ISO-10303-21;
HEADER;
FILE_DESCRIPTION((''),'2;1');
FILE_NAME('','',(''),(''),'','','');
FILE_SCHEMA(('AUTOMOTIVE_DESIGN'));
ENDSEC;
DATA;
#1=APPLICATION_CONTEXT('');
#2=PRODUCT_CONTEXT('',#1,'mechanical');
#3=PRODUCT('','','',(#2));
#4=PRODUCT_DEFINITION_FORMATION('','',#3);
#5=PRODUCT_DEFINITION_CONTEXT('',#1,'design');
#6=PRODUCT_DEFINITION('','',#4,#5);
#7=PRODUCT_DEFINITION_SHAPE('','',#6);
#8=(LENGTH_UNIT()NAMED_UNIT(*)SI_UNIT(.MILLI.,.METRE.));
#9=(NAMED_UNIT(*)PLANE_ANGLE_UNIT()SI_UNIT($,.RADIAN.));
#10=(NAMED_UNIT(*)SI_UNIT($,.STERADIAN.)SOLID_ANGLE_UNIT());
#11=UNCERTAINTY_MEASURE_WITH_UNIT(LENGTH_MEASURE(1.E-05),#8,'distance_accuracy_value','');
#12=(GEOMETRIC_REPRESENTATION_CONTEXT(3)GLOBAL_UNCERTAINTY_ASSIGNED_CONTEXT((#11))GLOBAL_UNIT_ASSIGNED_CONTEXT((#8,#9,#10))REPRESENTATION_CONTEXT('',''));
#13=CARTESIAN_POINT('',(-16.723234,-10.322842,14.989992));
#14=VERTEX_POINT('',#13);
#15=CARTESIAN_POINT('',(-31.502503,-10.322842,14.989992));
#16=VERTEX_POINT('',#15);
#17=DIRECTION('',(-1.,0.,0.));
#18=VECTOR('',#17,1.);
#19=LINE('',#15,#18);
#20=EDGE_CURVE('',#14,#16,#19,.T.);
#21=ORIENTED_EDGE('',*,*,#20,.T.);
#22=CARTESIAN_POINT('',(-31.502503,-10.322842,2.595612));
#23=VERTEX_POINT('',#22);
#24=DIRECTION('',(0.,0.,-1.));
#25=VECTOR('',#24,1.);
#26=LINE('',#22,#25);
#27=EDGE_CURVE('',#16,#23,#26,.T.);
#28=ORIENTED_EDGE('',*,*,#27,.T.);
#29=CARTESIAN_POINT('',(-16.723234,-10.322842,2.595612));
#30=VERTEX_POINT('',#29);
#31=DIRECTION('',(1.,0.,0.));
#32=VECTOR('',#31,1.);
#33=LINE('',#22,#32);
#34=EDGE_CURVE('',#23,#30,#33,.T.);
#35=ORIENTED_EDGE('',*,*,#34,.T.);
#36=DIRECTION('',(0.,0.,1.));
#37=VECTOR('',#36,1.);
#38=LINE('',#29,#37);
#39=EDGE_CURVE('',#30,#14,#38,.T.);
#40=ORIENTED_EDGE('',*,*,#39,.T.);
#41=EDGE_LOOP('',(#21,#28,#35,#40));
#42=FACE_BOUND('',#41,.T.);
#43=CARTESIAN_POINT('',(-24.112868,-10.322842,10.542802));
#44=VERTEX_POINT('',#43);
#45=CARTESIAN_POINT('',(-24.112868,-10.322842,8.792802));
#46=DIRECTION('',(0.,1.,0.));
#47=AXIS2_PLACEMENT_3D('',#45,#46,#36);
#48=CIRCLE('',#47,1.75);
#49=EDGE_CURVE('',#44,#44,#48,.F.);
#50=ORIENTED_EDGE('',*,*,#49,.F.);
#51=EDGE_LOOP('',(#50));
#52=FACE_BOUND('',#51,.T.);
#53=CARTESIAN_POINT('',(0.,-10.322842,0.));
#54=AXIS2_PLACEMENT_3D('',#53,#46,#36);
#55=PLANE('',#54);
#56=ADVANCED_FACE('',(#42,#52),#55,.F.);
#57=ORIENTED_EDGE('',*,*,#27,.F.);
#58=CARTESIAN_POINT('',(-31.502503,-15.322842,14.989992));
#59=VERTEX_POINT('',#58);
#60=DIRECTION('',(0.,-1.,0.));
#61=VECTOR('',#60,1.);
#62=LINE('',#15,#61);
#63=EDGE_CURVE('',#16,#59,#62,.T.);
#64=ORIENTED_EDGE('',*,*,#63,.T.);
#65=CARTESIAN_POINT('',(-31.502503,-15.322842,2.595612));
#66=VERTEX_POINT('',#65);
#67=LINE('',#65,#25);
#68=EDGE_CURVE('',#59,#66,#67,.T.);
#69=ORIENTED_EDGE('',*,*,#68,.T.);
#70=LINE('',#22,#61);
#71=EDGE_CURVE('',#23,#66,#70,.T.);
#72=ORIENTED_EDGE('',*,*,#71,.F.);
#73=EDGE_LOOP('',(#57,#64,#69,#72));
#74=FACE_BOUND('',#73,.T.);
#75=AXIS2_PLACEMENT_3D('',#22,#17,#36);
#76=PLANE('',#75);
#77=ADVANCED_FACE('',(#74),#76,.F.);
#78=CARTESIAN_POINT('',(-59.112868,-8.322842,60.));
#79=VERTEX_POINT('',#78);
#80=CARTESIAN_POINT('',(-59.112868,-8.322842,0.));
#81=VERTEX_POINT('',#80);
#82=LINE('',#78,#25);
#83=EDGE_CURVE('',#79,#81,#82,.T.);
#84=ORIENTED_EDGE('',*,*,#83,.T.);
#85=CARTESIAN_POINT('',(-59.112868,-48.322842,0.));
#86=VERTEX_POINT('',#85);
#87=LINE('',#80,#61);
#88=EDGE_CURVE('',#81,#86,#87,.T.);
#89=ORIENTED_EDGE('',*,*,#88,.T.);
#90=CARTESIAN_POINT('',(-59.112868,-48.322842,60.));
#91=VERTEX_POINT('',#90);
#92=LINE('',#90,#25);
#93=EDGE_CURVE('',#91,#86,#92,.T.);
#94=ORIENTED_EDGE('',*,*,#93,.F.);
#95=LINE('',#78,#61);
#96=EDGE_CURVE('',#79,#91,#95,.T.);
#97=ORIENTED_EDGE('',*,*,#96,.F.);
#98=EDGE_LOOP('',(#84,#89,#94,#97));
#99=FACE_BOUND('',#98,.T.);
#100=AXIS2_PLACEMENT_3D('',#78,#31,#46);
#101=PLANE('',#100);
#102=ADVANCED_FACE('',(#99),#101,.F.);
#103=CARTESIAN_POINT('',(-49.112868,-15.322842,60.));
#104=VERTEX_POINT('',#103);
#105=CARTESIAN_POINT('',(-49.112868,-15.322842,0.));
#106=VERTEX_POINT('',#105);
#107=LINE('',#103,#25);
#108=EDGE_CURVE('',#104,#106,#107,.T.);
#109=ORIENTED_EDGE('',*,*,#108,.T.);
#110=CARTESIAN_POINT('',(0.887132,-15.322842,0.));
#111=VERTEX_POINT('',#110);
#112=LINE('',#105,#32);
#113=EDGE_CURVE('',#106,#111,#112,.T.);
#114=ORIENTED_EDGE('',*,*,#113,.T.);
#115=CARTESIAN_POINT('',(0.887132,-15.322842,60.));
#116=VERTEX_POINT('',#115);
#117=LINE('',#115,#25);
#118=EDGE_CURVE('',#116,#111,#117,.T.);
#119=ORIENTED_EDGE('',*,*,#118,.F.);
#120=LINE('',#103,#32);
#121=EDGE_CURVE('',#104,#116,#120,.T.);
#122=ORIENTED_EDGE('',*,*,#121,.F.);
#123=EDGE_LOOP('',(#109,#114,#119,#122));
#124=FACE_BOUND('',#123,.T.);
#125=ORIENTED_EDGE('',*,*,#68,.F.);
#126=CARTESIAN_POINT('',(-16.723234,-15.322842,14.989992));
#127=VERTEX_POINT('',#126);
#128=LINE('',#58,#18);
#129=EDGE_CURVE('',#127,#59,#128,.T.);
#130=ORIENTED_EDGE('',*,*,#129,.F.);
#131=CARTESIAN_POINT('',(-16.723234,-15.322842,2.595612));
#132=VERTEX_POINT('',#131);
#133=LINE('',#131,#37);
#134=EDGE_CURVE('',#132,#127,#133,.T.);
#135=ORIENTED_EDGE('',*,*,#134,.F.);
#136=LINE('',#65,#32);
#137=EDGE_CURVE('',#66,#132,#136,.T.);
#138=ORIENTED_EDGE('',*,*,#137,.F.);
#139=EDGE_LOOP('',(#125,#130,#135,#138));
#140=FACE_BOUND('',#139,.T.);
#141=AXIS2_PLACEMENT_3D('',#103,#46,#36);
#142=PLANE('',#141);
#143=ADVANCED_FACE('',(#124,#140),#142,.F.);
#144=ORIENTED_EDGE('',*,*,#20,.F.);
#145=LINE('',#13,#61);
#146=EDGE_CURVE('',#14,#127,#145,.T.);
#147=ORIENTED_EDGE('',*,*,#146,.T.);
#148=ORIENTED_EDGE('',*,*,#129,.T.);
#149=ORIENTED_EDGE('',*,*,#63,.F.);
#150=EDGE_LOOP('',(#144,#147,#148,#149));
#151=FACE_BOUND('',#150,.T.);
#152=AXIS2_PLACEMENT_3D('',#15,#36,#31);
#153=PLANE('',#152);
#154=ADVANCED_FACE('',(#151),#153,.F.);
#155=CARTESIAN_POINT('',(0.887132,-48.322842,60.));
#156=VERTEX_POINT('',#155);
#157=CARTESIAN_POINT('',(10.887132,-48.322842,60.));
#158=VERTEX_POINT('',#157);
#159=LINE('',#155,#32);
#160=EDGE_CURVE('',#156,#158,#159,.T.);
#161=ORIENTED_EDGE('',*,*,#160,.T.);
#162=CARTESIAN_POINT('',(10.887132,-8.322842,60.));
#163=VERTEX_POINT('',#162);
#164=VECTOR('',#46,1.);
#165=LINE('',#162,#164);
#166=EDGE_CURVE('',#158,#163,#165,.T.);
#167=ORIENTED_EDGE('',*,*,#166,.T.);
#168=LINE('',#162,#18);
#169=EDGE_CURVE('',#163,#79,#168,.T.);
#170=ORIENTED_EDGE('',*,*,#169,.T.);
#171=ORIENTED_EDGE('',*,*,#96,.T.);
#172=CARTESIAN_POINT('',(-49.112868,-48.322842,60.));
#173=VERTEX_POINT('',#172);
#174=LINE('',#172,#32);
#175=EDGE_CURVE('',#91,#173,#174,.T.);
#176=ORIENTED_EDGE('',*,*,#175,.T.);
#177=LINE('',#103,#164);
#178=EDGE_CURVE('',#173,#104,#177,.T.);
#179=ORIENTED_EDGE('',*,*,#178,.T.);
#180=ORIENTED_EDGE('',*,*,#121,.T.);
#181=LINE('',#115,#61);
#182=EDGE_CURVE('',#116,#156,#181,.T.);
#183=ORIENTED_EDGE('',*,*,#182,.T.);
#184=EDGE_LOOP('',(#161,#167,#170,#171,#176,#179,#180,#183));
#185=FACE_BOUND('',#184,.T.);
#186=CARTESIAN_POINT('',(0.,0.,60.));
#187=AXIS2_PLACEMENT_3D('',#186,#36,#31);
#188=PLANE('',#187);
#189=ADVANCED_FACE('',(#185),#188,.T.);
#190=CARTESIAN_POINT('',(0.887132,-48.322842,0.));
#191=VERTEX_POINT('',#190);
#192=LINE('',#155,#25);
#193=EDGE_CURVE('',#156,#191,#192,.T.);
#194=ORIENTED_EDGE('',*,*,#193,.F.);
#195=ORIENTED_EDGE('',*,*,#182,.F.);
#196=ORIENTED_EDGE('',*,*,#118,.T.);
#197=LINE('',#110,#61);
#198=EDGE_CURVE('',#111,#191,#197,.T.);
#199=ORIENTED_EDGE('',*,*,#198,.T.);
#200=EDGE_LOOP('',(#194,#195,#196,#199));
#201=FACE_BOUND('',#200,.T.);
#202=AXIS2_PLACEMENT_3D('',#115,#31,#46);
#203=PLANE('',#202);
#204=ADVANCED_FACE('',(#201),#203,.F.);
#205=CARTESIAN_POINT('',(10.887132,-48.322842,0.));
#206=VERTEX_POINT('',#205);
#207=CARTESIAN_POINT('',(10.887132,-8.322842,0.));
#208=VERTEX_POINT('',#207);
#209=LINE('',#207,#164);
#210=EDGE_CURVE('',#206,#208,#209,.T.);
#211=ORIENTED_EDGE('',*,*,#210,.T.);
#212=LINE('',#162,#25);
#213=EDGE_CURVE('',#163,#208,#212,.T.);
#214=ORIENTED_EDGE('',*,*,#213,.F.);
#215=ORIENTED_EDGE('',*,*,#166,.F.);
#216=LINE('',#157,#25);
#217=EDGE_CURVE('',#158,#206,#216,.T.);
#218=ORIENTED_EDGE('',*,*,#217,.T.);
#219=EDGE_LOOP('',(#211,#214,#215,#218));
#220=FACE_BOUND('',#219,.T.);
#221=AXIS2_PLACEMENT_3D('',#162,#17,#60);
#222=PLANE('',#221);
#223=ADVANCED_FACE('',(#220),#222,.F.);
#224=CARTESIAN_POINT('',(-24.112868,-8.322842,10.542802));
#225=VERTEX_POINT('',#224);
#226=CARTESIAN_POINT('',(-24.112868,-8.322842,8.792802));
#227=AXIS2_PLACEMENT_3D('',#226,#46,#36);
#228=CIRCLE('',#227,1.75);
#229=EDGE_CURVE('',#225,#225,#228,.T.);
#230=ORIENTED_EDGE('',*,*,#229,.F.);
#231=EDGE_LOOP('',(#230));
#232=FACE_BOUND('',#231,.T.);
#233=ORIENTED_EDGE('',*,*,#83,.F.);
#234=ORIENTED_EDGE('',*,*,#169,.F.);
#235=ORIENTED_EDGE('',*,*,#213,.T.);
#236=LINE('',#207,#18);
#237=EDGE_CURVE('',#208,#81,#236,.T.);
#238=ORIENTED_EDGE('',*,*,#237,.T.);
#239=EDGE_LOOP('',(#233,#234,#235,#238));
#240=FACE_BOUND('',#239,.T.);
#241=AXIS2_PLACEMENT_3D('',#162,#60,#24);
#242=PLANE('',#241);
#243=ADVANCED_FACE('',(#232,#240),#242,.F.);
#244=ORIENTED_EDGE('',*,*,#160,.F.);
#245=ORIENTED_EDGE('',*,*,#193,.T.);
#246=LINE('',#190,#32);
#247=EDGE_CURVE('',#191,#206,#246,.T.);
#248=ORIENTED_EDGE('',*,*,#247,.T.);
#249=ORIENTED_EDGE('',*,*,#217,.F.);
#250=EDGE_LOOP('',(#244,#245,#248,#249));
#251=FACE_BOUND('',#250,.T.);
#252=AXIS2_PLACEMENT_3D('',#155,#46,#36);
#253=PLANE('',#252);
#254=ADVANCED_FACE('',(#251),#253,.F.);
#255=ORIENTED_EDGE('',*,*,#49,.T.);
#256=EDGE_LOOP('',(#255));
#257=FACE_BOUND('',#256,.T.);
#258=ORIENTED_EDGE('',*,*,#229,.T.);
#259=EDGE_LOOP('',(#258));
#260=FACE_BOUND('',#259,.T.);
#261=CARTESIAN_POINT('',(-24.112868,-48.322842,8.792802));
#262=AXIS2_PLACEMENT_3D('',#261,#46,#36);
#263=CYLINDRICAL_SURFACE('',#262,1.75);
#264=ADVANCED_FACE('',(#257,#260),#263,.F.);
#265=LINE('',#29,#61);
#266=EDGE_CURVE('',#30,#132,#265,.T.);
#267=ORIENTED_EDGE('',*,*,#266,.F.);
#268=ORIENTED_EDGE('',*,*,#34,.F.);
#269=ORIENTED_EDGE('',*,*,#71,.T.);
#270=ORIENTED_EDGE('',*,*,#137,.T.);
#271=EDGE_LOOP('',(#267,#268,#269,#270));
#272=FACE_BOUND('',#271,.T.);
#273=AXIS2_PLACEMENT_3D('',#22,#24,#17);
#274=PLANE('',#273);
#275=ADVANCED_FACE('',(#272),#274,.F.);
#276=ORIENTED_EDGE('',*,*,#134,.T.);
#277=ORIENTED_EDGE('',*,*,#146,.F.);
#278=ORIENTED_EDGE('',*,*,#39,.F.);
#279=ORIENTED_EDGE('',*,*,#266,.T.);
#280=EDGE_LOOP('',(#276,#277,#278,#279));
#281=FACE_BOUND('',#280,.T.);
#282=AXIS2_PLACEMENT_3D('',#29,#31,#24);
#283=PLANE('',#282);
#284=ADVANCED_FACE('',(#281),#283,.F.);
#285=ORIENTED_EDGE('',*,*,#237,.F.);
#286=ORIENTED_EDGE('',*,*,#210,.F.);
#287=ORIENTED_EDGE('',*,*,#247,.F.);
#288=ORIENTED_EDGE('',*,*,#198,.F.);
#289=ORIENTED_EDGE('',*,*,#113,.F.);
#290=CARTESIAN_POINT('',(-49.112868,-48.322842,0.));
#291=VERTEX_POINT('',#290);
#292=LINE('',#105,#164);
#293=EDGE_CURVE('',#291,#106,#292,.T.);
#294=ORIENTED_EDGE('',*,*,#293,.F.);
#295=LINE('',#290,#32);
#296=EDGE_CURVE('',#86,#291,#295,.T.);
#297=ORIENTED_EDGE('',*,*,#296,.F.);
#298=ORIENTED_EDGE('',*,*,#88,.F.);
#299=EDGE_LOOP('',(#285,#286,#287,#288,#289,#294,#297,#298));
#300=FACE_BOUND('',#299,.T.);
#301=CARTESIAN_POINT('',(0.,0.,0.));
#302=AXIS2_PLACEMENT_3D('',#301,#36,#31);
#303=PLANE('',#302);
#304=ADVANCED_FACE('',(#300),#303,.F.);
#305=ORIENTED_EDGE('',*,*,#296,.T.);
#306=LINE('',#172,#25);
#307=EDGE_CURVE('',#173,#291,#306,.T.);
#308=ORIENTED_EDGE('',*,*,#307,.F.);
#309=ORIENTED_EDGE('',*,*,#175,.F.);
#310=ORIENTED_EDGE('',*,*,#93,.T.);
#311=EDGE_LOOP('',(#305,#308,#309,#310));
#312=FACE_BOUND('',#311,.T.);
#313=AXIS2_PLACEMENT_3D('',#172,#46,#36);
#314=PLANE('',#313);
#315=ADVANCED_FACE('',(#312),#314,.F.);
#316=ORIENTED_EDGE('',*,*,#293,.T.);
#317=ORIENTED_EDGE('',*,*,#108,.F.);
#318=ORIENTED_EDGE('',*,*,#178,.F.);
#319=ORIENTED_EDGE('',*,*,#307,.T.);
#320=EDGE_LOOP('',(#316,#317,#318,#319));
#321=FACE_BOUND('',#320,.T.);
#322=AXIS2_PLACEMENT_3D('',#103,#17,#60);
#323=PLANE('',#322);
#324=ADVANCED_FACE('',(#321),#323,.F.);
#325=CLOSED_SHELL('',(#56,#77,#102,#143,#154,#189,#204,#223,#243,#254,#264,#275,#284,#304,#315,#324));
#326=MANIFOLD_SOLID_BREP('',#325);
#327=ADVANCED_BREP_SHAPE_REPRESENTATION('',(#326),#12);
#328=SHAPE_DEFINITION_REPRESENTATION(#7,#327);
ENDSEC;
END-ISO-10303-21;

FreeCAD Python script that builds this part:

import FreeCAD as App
import Part
import Sketcher


def add_polygon(sketch, points):
    """Adds a closed chain of lines whose ends are joined by coincident constraints."""
    first, n = sketch.GeometryCount, len(points)
    for a, b in zip(points, points[1:] + points[:1]):
        sketch.addGeometry(Part.LineSegment(App.Vector(*a, 0), App.Vector(*b, 0)), False)
    for i in range(n):
        sketch.addConstraint(Sketcher.Constraint("Coincident", first + i, 2, first + (i + 1) % n, 1))

doc = App.newDocument("Part")
params = doc.addObject("Spreadsheet::Sheet", "Params")
for row, (alias, value) in enumerate([
    ("sketch1_width", "10 mm"),
    ("sketch1_width2", "50 mm"),
    ("sketch1_height", "40 mm"),
    ("sketch1_height2", "33 mm"),
    ("pad1_length", "60 mm"),
    ("sketch2_diameter", "3.5 mm"),
    ("pocket2_length", "5 mm"),
], start=1):
    params.set(f"A{row}", alias)
    params.set(f"B{row}", "=" + value)
    params.setAlias(f"B{row}", alias)

body = doc.addObject("PartDesign::Body", "Body")

sketch1 = body.newObject("Sketcher::SketchObject", "Sketch")
sketch1.AttachmentSupport = (doc.getObject("XY_Plane"), [""])
sketch1.MapMode = "FlatFace"
add_polygon(sketch1, [(-59, -8), (-59, -48), (-49, -48), (-49, -15), (1, -15), (1, -48), (11, -48), (11, -8)])
sketch1.addConstraint([
    Sketcher.Constraint("Vertical", 0),
    Sketcher.Constraint("Horizontal", 1),
    Sketcher.Constraint("Vertical", 2),
    Sketcher.Constraint("Horizontal", 3),
    Sketcher.Constraint("Vertical", 4),
    Sketcher.Constraint("Horizontal", 5),
    Sketcher.Constraint("Vertical", 6),
    Sketcher.Constraint("Horizontal", 7),
    Sketcher.Constraint("Horizontal", 1, 2, 4, 2),
    Sketcher.Constraint("Equal", 1, 5),
    Sketcher.Constraint("DistanceX", 1, 1, 1, 2, 10.0),
    Sketcher.Constraint("DistanceX", 3, 1, 3, 2, 50.0),
    Sketcher.Constraint("DistanceY", 0, 2, 0, 1, 40.0),
    Sketcher.Constraint("DistanceY", 2, 1, 2, 2, 33.0),
    Sketcher.Constraint("DistanceX", 0, 2, -1, 1, 59.112868),
    Sketcher.Constraint("DistanceY", 0, 2, -1, 1, 48.322842),
])
sketch1.setExpression("Constraints[18]", "Params.sketch1_width")
sketch1.setExpression("Constraints[19]", "Params.sketch1_width2")
sketch1.setExpression("Constraints[20]", "Params.sketch1_height")
sketch1.setExpression("Constraints[21]", "Params.sketch1_height2")
pad1 = body.newObject("PartDesign::Pad", "Pad")
pad1.Profile = sketch1
pad1.setExpression("Length", "Params.pad1_length")

sketch2 = body.newObject("Sketcher::SketchObject", "Sketch001")
sketch2.AttachmentSupport = (doc.getObject("XZ_Plane"), [""])
sketch2.MapMode = "FlatFace"
sketch2.AttachmentOffset = App.Placement(App.Vector(0, 0, 15.322842), App.Rotation())
sketch2.addGeometry(Part.Circle(App.Vector(-24.1, 8.8, 0), App.Vector(0, 0, 1), 1.8), False)
sketch2.addConstraint([
    Sketcher.Constraint("Diameter", 0, 3.5),
    Sketcher.Constraint("DistanceY", -1, 1, 0, 3, 8.792802),
    Sketcher.Constraint("DistanceX", 0, 3, -1, 1, 24.112868),
])
sketch2.setExpression("Constraints[0]", "Params.sketch2_diameter")
pocket1 = body.newObject("PartDesign::Pocket", "Pocket")
pocket1.Profile = sketch2
pocket1.Type = "ThroughAll"
pocket1.Midplane = True

sketch3 = body.newObject("Sketcher::SketchObject", "Sketch002")
sketch3.AttachmentSupport = (doc.getObject("XZ_Plane"), [""])
sketch3.MapMode = "FlatFace"
sketch3.AttachmentOffset = App.Placement(App.Vector(0, 0, 15.322842), App.Rotation())
add_polygon(sketch3, [(-17, 3), (-17, 15), (-32, 15), (-32, 3)])
sketch3.addConstraint([
    Sketcher.Constraint("Vertical", 0),
    Sketcher.Constraint("Horizontal", 1),
    Sketcher.Constraint("Vertical", 2),
    Sketcher.Constraint("Horizontal", 3),
    Sketcher.Constraint("DistanceX", 1, 2, 1, 1, 14.779269),
    Sketcher.Constraint("DistanceY", 0, 1, 0, 2, 12.394379),
    Sketcher.Constraint("DistanceY", -1, 1, 0, 2, 14.989992),
    Sketcher.Constraint("DistanceX", 0, 2, -1, 1, 16.723234),
])
pocket2 = body.newObject("PartDesign::Pocket", "Pocket001")
pocket2.Profile = sketch3
pocket2.setExpression("Length", "Params.pocket2_length")

doc.recompute()
